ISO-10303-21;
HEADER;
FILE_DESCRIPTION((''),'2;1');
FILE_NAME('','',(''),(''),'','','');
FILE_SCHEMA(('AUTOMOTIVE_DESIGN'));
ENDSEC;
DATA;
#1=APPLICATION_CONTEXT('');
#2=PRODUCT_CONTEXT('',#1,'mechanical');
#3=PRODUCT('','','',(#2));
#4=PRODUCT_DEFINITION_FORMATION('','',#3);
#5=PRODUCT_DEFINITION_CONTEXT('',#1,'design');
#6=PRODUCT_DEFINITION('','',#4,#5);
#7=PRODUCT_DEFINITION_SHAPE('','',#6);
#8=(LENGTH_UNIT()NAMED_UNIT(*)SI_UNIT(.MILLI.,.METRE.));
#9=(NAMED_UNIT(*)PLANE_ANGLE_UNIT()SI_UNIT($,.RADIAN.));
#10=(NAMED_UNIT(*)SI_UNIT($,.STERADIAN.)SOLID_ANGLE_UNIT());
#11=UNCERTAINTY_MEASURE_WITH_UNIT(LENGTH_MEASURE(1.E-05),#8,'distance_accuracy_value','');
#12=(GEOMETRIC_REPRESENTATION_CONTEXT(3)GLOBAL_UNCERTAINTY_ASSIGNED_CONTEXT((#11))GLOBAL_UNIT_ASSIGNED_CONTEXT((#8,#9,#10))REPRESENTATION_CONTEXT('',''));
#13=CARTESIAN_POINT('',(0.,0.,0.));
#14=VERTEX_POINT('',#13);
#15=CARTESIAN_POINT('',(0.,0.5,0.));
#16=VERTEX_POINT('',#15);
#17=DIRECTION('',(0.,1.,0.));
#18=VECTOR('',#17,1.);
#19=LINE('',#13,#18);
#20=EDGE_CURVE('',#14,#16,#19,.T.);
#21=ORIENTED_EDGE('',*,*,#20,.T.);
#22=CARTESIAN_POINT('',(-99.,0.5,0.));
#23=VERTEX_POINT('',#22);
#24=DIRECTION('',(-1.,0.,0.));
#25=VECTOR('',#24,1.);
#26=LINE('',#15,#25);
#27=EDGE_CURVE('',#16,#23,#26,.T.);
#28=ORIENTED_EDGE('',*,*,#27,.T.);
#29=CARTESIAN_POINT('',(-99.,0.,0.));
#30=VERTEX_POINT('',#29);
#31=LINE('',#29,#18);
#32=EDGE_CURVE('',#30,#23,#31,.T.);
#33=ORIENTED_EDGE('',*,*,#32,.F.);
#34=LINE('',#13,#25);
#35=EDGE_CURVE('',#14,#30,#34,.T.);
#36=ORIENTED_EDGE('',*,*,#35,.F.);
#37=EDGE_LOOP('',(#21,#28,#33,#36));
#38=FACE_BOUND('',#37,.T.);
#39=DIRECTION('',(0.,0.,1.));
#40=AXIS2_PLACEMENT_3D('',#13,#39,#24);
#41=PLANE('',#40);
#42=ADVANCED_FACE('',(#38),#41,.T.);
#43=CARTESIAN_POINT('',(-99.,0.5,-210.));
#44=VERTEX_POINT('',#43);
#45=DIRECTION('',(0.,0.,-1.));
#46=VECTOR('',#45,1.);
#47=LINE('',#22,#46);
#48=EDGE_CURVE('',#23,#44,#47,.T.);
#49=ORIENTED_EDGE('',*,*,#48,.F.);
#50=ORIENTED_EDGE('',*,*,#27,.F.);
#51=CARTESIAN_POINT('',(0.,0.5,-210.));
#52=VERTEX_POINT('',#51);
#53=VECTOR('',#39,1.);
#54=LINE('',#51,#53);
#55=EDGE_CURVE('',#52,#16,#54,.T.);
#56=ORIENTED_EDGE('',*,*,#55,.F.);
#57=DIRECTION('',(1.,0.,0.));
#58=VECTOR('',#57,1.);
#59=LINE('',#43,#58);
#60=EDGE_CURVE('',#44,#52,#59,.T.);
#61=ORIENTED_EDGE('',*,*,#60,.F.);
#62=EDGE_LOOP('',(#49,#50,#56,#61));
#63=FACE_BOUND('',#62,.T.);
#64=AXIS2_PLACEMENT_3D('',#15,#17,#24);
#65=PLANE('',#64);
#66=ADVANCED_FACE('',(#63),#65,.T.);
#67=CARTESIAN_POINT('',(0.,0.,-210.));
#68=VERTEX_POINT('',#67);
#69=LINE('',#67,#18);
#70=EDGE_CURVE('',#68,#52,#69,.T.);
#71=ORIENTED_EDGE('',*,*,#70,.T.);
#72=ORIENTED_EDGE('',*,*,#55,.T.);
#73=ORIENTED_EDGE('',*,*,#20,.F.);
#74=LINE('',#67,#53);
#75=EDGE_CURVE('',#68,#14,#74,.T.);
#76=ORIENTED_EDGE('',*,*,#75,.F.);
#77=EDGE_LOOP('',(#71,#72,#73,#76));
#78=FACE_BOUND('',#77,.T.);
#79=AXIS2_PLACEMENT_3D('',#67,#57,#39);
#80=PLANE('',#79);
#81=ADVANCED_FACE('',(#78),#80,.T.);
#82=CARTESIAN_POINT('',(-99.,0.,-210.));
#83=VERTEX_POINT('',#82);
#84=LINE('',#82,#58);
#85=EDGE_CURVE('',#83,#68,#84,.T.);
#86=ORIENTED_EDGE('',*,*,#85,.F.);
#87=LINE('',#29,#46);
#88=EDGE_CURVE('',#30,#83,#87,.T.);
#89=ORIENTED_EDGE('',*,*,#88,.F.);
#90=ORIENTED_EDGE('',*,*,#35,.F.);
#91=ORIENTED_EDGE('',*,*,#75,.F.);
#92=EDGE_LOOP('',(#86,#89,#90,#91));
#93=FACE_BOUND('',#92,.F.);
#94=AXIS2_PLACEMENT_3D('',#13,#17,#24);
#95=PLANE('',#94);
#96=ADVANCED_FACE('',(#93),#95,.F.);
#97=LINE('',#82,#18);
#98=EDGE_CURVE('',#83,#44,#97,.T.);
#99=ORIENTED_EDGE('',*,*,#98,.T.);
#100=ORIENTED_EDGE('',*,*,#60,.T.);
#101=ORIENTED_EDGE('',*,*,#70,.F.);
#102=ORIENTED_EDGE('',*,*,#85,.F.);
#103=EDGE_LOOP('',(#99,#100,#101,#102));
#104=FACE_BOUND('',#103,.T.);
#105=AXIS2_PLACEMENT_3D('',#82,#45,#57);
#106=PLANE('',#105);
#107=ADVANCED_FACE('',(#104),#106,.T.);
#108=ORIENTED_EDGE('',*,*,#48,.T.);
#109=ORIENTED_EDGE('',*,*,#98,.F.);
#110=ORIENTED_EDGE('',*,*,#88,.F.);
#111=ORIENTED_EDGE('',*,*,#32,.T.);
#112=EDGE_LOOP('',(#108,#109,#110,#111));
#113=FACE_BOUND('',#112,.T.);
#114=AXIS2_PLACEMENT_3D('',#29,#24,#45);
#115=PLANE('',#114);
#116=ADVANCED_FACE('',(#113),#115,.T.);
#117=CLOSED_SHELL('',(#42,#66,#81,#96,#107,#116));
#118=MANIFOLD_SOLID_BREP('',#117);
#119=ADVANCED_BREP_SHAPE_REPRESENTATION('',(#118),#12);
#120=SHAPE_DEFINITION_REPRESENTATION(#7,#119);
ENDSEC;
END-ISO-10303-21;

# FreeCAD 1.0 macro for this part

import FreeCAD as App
import Part
import Sketcher
from FreeCAD import Vector

doc = App.newDocument("Part")
body = doc.addObject("PartDesign::Body", "Body")

# Sketch on XZ plane
sketch1 = doc.addObject("Sketcher::SketchObject", "Sketch")
body.addObject(sketch1)
sketch1.AttachmentSupport = (doc.XZ_Plane, [""])
sketch1.MapMode = "FlatFace"
sketch1.addGeometry([
    Part.LineSegment(Vector(-99, 0, 0), Vector(0, 0, 0)),
    Part.LineSegment(Vector(0, 0, 0), Vector(0, -210, 0)),
    Part.LineSegment(Vector(0, -210, 0), Vector(-99, -210, 0)),
    Part.LineSegment(Vector(-99, -210, 0), Vector(-99, 0, 0)),
], False)
sketch1.addConstraint([
    Sketcher.Constraint("Coincident", 0, 2, 1, 1),
    Sketcher.Constraint("Coincident", 1, 2, 2, 1),
    Sketcher.Constraint("Coincident", 2, 2, 3, 1),
    Sketcher.Constraint("Coincident", 3, 2, 0, 1),
    Sketcher.Constraint("Horizontal", 0),
    Sketcher.Constraint("Vertical", 1),
    Sketcher.Constraint("Horizontal", 2),
    Sketcher.Constraint("Vertical", 3),
    Sketcher.Constraint("Coincident", 0, 2, -1, 1),
    Sketcher.Constraint("DistanceX", 0, 1, 0, 2, 99.0),
    Sketcher.Constraint("DistanceY", 1, 2, 1, 1, 210.0),
])
pad1 = doc.addObject("PartDesign::Pad", "Pad")
body.addObject(pad1)
pad1.Profile = sketch1
pad1.Length = 0.5
pad1.Reversed = True

doc.recompute()
